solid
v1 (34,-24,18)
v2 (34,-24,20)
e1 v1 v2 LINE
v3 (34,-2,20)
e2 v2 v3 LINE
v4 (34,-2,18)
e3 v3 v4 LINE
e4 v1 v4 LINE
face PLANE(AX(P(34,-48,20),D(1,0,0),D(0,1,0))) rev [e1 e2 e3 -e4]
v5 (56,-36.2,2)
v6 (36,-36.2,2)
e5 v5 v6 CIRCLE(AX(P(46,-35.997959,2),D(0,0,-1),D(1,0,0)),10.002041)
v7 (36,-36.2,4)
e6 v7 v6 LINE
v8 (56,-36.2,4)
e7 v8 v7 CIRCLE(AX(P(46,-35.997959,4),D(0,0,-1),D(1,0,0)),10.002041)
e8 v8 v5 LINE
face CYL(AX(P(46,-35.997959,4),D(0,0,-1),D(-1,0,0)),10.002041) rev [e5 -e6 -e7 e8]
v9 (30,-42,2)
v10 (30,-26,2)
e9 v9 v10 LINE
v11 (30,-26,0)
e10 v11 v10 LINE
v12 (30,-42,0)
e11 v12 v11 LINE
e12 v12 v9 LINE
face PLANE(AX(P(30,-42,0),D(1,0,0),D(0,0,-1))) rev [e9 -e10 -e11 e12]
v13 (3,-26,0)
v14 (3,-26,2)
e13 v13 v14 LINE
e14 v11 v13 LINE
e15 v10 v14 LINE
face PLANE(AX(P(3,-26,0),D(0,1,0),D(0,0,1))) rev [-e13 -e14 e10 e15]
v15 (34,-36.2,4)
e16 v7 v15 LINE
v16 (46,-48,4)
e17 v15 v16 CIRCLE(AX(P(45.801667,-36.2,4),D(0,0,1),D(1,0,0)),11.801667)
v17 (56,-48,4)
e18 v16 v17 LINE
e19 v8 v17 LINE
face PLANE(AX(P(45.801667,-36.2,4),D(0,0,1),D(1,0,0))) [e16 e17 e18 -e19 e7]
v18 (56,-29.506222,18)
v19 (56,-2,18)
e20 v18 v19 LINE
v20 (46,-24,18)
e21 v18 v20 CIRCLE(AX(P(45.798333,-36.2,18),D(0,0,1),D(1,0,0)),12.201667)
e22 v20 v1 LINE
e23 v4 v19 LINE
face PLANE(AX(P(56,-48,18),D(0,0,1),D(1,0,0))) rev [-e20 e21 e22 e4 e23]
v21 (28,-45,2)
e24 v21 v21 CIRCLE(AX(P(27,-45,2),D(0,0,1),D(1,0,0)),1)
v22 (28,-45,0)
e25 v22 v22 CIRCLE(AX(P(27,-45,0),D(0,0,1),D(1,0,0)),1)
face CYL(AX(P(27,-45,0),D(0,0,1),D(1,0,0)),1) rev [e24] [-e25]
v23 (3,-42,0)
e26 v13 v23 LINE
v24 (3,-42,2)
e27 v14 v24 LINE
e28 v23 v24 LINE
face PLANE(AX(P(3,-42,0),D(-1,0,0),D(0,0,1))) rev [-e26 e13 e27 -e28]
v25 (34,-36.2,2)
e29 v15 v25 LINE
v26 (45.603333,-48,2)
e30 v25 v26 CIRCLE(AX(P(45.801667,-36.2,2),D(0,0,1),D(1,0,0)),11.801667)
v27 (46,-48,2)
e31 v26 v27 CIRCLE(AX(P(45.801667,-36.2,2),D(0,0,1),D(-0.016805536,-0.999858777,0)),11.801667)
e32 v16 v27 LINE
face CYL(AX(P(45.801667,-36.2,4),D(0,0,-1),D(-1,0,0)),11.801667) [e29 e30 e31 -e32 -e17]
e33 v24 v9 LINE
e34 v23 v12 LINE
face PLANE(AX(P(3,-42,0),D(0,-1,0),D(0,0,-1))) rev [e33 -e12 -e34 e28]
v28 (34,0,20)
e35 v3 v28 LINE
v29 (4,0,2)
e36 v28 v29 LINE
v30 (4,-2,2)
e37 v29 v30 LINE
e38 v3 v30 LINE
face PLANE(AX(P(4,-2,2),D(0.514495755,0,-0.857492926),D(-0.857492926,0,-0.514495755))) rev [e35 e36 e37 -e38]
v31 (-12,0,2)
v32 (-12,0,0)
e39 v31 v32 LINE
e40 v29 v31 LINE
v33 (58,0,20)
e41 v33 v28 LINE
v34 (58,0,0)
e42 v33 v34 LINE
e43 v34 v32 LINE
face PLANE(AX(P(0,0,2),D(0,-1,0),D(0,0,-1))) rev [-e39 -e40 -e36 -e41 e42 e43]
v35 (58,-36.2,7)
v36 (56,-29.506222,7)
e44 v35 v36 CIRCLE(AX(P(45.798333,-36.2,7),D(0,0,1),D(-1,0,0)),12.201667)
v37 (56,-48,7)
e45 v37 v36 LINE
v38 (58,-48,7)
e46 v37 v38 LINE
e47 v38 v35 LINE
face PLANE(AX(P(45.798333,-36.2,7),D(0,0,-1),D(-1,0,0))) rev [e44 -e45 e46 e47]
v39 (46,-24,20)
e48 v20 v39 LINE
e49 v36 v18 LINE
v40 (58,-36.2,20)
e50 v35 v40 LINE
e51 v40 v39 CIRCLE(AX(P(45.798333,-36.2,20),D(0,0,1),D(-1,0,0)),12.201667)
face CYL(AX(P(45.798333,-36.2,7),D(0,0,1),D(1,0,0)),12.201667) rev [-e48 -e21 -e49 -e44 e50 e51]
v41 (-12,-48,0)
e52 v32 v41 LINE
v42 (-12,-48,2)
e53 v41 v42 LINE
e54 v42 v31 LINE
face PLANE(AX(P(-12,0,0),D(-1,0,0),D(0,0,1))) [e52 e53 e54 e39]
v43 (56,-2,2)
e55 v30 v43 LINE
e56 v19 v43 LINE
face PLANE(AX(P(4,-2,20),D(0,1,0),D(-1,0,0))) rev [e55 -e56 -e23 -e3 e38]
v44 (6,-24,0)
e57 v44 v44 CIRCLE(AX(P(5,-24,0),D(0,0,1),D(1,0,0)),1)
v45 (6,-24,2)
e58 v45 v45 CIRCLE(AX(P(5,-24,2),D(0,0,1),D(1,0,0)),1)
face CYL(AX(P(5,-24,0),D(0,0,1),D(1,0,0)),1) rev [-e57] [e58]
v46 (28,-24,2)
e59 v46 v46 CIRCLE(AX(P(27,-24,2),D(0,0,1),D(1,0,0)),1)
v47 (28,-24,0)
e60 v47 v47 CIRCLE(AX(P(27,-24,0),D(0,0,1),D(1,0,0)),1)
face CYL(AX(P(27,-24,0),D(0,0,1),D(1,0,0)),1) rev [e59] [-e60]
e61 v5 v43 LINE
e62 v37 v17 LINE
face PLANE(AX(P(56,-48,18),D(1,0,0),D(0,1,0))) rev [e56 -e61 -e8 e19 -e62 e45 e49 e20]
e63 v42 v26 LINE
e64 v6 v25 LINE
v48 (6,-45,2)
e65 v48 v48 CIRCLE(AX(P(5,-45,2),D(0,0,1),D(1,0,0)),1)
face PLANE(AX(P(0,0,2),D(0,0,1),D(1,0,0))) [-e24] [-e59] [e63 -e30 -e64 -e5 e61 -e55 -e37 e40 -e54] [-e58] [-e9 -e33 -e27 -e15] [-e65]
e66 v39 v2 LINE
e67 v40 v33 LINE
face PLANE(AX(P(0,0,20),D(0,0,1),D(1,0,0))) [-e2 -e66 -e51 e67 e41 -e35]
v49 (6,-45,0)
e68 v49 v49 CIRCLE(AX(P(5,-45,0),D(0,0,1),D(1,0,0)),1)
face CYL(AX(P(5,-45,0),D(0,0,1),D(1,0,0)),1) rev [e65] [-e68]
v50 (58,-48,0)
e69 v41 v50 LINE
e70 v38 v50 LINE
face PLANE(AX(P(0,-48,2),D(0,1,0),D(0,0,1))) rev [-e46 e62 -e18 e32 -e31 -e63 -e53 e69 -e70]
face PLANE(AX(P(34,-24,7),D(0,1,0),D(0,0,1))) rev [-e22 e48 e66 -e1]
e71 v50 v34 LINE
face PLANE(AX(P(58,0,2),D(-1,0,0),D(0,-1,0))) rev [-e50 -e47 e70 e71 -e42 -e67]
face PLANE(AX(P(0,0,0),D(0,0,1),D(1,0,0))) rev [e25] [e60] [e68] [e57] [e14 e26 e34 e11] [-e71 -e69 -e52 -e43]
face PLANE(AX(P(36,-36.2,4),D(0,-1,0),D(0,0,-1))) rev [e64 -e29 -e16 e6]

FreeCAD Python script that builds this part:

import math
import FreeCAD as App
import Part
import Sketcher

V = App.Vector
Q = App.Units.Quantity


def add_polygon(sketch, points):
    """Adds a closed chain of lines whose ends are joined by coincident constraints."""
    first, n = sketch.GeometryCount, len(points)
    for a, b in zip(points, points[1:] + points[:1]):
        sketch.addGeometry(Part.LineSegment(App.Vector(*a, 0), App.Vector(*b, 0)), False)
    for i in range(n):
        sketch.addConstraint(Sketcher.Constraint("Coincident", first + i, 2, first + (i + 1) % n, 1))

doc = App.newDocument("Part")
body = doc.addObject("PartDesign::Body", "Body")

sketch1 = doc.addObject("Sketcher::SketchObject", "Sketch")
body.addObject(sketch1)
sketch1.AttachmentSupport = (doc.XY_Plane, [""])
sketch1.MapMode = "FlatFace"
add_polygon(sketch1, [(0, 0), (0, -48), (58, -48), (58, 0)])
sketch1.addConstraint([
    Sketcher.Constraint("Vertical", 0),
    Sketcher.Constraint("Horizontal", 1),
    Sketcher.Constraint("Vertical", 2),
    Sketcher.Constraint("Horizontal", 3),
    Sketcher.Constraint("Coincident", 3, 2, -1, 1),
    Sketcher.Constraint("DistanceX", 1, 1, 1, 2, Q("58 mm")),
    Sketcher.Constraint("DistanceY", 0, 2, 0, 1, Q("48 mm")),
])
pad1 = doc.addObject("PartDesign::Pad", "Pad")
body.addObject(pad1)
pad1.Profile = sketch1
pad1.Length = 2

sketch2 = doc.addObject("Sketcher::SketchObject", "Sketch001")
body.addObject(sketch2)
sketch2.AttachmentSupport = (doc.XY_Plane, [""])
sketch2.MapMode = "FlatFace"
sketch2.AttachmentOffset = App.Placement(V(0, 0, 2), App.Rotation())
sketch2.addGeometry(Part.Circle(V(5, -45, 0), V(0, 0, 1), 1), False)
sketch2.addGeometry(Part.Circle(V(27, -45, 0), V(0, 0, 1), 1), False)
sketch2.addGeometry(Part.Circle(V(5, -24, 0), V(0, 0, 1), 1), False)
sketch2.addGeometry(Part.Circle(V(27, -24, 0), V(0, 0, 1), 1), False)
add_polygon(sketch2, [(3, -26), (3, -42), (30, -42), (30, -26)])
sketch2.addConstraint([
    Sketcher.Constraint("Vertical", 4),
    Sketcher.Constraint("Horizontal", 5),
    Sketcher.Constraint("Vertical", 6),
    Sketcher.Constraint("Horizontal", 7),
    Sketcher.Constraint("Equal", 0, 1),
    Sketcher.Constraint("Equal", 1, 2),
    Sketcher.Constraint("Equal", 2, 3),
    Sketcher.Constraint("Horizontal", 0, 3, 1, 3),
    Sketcher.Constraint("Horizontal", 2, 3, 3, 3),
    Sketcher.Constraint("Vertical", 0, 3, 2, 3),
    Sketcher.Constraint("Vertical", 1, 3, 3, 3),
    Sketcher.Constraint("Diameter", 0, Q("2 mm")),
    Sketcher.Constraint("DistanceX", 5, 1, 5, 2, Q("27 mm")),
    Sketcher.Constraint("DistanceY", 4, 2, 4, 1, Q("16 mm")),
    Sketcher.Constraint("DistanceX", -1, 1, 0, 3, Q("5 mm")),
    Sketcher.Constraint("DistanceY", 0, 3, -1, 1, Q("45 mm")),
    Sketcher.Constraint("DistanceX", -1, 1, 1, 3, Q("27 mm")),
    Sketcher.Constraint("DistanceY", 2, 3, -1, 1, Q("24 mm")),
    Sketcher.Constraint("DistanceX", -1, 1, 4, 2, Q("3 mm")),
    Sketcher.Constraint("DistanceY", 4, 2, -1, 1, Q("42 mm")),
])
pocket1 = doc.addObject("PartDesign::Pocket", "Pocket")
body.addObject(pocket1)
pocket1.Profile = sketch2
pocket1.Length = 2

sketch3 = doc.addObject("Sketcher::SketchObject", "Sketch002")
body.addObject(sketch3)
sketch3.AttachmentSupport = (doc.XY_Plane, [""])
sketch3.MapMode = "FlatFace"
sketch3.AttachmentOffset = App.Placement(V(0, 0, 2), App.Rotation())
add_polygon(sketch3, [(4, 0), (4, -2), (58, -2), (58, 0)])
sketch3.addConstraint([
    Sketcher.Constraint("Vertical", 0),
    Sketcher.Constraint("Horizontal", 1),
    Sketcher.Constraint("Vertical", 2),
    Sketcher.Constraint("Horizontal", 3),
    Sketcher.Constraint("PointOnObject", 2, 2, -1),
    Sketcher.Constraint("DistanceX", 1, 1, 1, 2, Q("54 mm")),
    Sketcher.Constraint("DistanceY", 0, 2, 0, 1, Q("2 mm")),
    Sketcher.Constraint("DistanceX", -1, 1, 0, 2, Q("4 mm")),
])
pad2 = doc.addObject("PartDesign::Pad", "Pad001")
body.addObject(pad2)
pad2.Profile = sketch3
pad2.Length = 18

sketch4 = doc.addObject("Sketcher::SketchObject", "Sketch003")
body.addObject(sketch4)
sketch4.AttachmentSupport = (doc.XZ_Plane, [""])
sketch4.MapMode = "FlatFace"
add_polygon(sketch4, [(34, 20), (4, 2), (4, 20)])
sketch4.addConstraint([
    Sketcher.Constraint("Vertical", 1),
    Sketcher.Constraint("Horizontal", 2),
    Sketcher.Constraint("DistanceX", 2, 1, 2, 2, Q("30 mm")),
    Sketcher.Constraint("DistanceY", 1, 1, 1, 2, Q("18 mm")),
    Sketcher.Constraint("DistanceX", -1, 1, 0, 2, Q("4 mm")),
    Sketcher.Constraint("DistanceY", -1, 1, 0, 2, Q("2 mm")),
])
pocket2 = doc.addObject("PartDesign::Pocket", "Pocket001")
body.addObject(pocket2)
pocket2.Profile = sketch4
pocket2.Length = 2
pocket2.Reversed = True

sketch5 = doc.addObject("Sketcher::SketchObject", "Sketch004")
body.addObject(sketch5)
sketch5.AttachmentSupport = (doc.XZ_Plane, [""])
sketch5.MapMode = "FlatFace"
sketch5.AttachmentOffset = App.Placement(V(0, 0, 2), App.Rotation())
add_polygon(sketch5, [(58, 20), (34, 20), (34, 18), (56, 18), (56, 2), (58, 2)])
sketch5.addConstraint([
    Sketcher.Constraint("Horizontal", 0),
    Sketcher.Constraint("Vertical", 1),
    Sketcher.Constraint("Horizontal", 2),
    Sketcher.Constraint("Vertical", 3),
    Sketcher.Constraint("Horizontal", 4),
    Sketcher.Constraint("Vertical", 5),
    Sketcher.Constraint("Equal", 4, 1),
    Sketcher.Constraint("DistanceX", 0, 2, 0, 1, Q("24 mm")),
    Sketcher.Constraint("DistanceX", 2, 1, 2, 2, Q("22 mm")),
    Sketcher.Constraint("DistanceY", 3, 2, 3, 1, Q("16 mm")),
    Sketcher.Constraint("DistanceX", -1, 1, 0, 2, Q("34 mm")),
    Sketcher.Constraint("DistanceY", -1, 1, 0, 2, Q("20 mm")),
])
pad3 = doc.addObject("PartDesign::Pad", "Pad002")
body.addObject(pad3)
pad3.Profile = sketch5
pad3.Length = 46

sketch6 = doc.addObject("Sketcher::SketchObject", "Sketch005")
body.addObject(sketch6)
sketch6.AttachmentSupport = (doc.XY_Plane, [""])
sketch6.MapMode = "FlatFace"
sketch6.AttachmentOffset = App.Placement(V(0, 0, 2), App.Rotation())
sketch6.addGeometry([
    Part.LineSegment(V(36, -36.2, 0), V(34, -36.2, 0)),
    Part.ArcOfCircle(Part.Circle(V(45.801667, -36.2, 0), V(0, 0, 1), 11.801667), math.radians(180), math.radians(270.962932)),
    Part.LineSegment(V(46, -48, 0), V(57, -48, 0)),
    Part.LineSegment(V(57, -48, 0), V(57, -36.2, 0)),
    Part.LineSegment(V(57, -36.2, 0), V(56, -36.2, 0)),
    Part.ArcOfCircle(Part.Circle(V(46, -35.997959, 0), V(0, 0, 1), 10.002041), math.radians(-178.842549), math.radians(-1.157451)),
], False)
sketch6.addConstraint([
    Sketcher.Constraint("Coincident", 0, 2, 1, 1),
    Sketcher.Constraint("Coincident", 1, 2, 2, 1),
    Sketcher.Constraint("Coincident", 2, 2, 3, 1),
    Sketcher.Constraint("Coincident", 3, 2, 4, 1),
    Sketcher.Constraint("Coincident", 4, 2, 5, 2),
    Sketcher.Constraint("Coincident", 5, 1, 0, 1),
    Sketcher.Constraint("Horizontal", 0),
    Sketcher.Constraint("Horizontal", 2),
    Sketcher.Constraint("Vertical", 3),
    Sketcher.Constraint("Horizontal", 4),
    Sketcher.Constraint("Horizontal", 1, 3, 0, 2),
    Sketcher.Constraint("Horizontal", 0, 2, 3, 2),
    Sketcher.Constraint("Vertical", 5, 3, 1, 2),
    Sketcher.Constraint("DistanceX", 0, 2, 0, 1, Q("2 mm")),
    Sketcher.Constraint("DistanceX", 2, 1, 2, 2, Q("11 mm")),
    Sketcher.Constraint("DistanceX", 4, 2, 4, 1, Q("1 mm")),
    Sketcher.Constraint("DistanceY", 3, 1, 3, 2, Q("11.8 mm")),
    Sketcher.Constraint("DistanceX", -1, 1, 5, 3, Q("46 mm")),
    Sketcher.Constraint("DistanceY", 1, 2, -1, 1, Q("48 mm")),
    Sketcher.Constraint("Radius", 5, Q("10.002041 mm")),
])
pad4 = doc.addObject("PartDesign::Pad", "Pad003")
body.addObject(pad4)
pad4.Profile = sketch6
pad4.Length = 2

sketch7 = doc.addObject("Sketcher::SketchObject", "Sketch006")
body.addObject(sketch7)
sketch7.AttachmentSupport = (doc.XY_Plane, [""])
sketch7.MapMode = "FlatFace"
sketch7.AttachmentOffset = App.Placement(V(0, 0, 20), App.Rotation())
sketch7.addGeometry([
    Part.LineSegment(V(58, -48, 0), V(58, -36.2, 0)),
    Part.ArcOfCircle(Part.Circle(V(45.798333, -36.2, 0), V(0, 0, 1), 12.201667), math.radians(0), math.radians(89.052984)),
    Part.LineSegment(V(46, -24, 0), V(34, -24, 0)),
    Part.LineSegment(V(34, -24, 0), V(34, -48, 0)),
    Part.LineSegment(V(34, -48, 0), V(58, -48, 0)),
], False)
sketch7.addConstraint([
    Sketcher.Constraint("Tangent", 0, 2, 1, 1),
    Sketcher.Constraint("Coincident", 1, 2, 2, 1),
    Sketcher.Constraint("Coincident", 2, 2, 3, 1),
    Sketcher.Constraint("Coincident", 3, 2, 4, 1),
    Sketcher.Constraint("Coincident", 4, 2, 0, 1),
    Sketcher.Constraint("Vertical", 0),
    Sketcher.Constraint("Horizontal", 2),
    Sketcher.Constraint("Vertical", 3),
    Sketcher.Constraint("Horizontal", 4),
    Sketcher.Constraint("Equal", 4, 3),
    Sketcher.Constraint("DistanceX", 2, 2, 2, 1, Q("12 mm")),
    Sketcher.Constraint("DistanceX", 4, 1, 4, 2, Q("24 mm")),
    Sketcher.Constraint("DistanceY", 0, 1, 0, 2, Q("11.8 mm")),
    Sketcher.Constraint("DistanceX", -1, 1, 0, 2, Q("58 mm")),
    Sketcher.Constraint("DistanceY", 1, 2, -1, 1, Q("24 mm")),
])
pocket3 = doc.addObject("PartDesign::Pocket", "Pocket002")
body.addObject(pocket3)
pocket3.Profile = sketch7
pocket3.Length = 13

sketch8 = doc.addObject("Sketcher::SketchObject", "Sketch007")
body.addObject(sketch8)
sketch8.AttachmentSupport = (doc.YZ_Plane, [""])
sketch8.MapMode = "FlatFace"
add_polygon(sketch8, [(0, 0), (-48, 0), (-48, 2), (0, 2)])
sketch8.addConstraint([
    Sketcher.Constraint("Horizontal", 0),
    Sketcher.Constraint("Vertical", 1),
    Sketcher.Constraint("Horizontal", 2),
    Sketcher.Constraint("Vertical", 3),
    Sketcher.Constraint("Coincident", 3, 2, -1, 1),
    Sketcher.Constraint("DistanceX", 0, 2, 0, 1, Q("48 mm")),
    Sketcher.Constraint("DistanceY", 1, 1, 1, 2, Q("2 mm")),
])
pad5 = doc.addObject("PartDesign::Pad", "Pad004")
body.addObject(pad5)
pad5.Profile = sketch8
pad5.Length = 12
pad5.Reversed = True

doc.recompute()
